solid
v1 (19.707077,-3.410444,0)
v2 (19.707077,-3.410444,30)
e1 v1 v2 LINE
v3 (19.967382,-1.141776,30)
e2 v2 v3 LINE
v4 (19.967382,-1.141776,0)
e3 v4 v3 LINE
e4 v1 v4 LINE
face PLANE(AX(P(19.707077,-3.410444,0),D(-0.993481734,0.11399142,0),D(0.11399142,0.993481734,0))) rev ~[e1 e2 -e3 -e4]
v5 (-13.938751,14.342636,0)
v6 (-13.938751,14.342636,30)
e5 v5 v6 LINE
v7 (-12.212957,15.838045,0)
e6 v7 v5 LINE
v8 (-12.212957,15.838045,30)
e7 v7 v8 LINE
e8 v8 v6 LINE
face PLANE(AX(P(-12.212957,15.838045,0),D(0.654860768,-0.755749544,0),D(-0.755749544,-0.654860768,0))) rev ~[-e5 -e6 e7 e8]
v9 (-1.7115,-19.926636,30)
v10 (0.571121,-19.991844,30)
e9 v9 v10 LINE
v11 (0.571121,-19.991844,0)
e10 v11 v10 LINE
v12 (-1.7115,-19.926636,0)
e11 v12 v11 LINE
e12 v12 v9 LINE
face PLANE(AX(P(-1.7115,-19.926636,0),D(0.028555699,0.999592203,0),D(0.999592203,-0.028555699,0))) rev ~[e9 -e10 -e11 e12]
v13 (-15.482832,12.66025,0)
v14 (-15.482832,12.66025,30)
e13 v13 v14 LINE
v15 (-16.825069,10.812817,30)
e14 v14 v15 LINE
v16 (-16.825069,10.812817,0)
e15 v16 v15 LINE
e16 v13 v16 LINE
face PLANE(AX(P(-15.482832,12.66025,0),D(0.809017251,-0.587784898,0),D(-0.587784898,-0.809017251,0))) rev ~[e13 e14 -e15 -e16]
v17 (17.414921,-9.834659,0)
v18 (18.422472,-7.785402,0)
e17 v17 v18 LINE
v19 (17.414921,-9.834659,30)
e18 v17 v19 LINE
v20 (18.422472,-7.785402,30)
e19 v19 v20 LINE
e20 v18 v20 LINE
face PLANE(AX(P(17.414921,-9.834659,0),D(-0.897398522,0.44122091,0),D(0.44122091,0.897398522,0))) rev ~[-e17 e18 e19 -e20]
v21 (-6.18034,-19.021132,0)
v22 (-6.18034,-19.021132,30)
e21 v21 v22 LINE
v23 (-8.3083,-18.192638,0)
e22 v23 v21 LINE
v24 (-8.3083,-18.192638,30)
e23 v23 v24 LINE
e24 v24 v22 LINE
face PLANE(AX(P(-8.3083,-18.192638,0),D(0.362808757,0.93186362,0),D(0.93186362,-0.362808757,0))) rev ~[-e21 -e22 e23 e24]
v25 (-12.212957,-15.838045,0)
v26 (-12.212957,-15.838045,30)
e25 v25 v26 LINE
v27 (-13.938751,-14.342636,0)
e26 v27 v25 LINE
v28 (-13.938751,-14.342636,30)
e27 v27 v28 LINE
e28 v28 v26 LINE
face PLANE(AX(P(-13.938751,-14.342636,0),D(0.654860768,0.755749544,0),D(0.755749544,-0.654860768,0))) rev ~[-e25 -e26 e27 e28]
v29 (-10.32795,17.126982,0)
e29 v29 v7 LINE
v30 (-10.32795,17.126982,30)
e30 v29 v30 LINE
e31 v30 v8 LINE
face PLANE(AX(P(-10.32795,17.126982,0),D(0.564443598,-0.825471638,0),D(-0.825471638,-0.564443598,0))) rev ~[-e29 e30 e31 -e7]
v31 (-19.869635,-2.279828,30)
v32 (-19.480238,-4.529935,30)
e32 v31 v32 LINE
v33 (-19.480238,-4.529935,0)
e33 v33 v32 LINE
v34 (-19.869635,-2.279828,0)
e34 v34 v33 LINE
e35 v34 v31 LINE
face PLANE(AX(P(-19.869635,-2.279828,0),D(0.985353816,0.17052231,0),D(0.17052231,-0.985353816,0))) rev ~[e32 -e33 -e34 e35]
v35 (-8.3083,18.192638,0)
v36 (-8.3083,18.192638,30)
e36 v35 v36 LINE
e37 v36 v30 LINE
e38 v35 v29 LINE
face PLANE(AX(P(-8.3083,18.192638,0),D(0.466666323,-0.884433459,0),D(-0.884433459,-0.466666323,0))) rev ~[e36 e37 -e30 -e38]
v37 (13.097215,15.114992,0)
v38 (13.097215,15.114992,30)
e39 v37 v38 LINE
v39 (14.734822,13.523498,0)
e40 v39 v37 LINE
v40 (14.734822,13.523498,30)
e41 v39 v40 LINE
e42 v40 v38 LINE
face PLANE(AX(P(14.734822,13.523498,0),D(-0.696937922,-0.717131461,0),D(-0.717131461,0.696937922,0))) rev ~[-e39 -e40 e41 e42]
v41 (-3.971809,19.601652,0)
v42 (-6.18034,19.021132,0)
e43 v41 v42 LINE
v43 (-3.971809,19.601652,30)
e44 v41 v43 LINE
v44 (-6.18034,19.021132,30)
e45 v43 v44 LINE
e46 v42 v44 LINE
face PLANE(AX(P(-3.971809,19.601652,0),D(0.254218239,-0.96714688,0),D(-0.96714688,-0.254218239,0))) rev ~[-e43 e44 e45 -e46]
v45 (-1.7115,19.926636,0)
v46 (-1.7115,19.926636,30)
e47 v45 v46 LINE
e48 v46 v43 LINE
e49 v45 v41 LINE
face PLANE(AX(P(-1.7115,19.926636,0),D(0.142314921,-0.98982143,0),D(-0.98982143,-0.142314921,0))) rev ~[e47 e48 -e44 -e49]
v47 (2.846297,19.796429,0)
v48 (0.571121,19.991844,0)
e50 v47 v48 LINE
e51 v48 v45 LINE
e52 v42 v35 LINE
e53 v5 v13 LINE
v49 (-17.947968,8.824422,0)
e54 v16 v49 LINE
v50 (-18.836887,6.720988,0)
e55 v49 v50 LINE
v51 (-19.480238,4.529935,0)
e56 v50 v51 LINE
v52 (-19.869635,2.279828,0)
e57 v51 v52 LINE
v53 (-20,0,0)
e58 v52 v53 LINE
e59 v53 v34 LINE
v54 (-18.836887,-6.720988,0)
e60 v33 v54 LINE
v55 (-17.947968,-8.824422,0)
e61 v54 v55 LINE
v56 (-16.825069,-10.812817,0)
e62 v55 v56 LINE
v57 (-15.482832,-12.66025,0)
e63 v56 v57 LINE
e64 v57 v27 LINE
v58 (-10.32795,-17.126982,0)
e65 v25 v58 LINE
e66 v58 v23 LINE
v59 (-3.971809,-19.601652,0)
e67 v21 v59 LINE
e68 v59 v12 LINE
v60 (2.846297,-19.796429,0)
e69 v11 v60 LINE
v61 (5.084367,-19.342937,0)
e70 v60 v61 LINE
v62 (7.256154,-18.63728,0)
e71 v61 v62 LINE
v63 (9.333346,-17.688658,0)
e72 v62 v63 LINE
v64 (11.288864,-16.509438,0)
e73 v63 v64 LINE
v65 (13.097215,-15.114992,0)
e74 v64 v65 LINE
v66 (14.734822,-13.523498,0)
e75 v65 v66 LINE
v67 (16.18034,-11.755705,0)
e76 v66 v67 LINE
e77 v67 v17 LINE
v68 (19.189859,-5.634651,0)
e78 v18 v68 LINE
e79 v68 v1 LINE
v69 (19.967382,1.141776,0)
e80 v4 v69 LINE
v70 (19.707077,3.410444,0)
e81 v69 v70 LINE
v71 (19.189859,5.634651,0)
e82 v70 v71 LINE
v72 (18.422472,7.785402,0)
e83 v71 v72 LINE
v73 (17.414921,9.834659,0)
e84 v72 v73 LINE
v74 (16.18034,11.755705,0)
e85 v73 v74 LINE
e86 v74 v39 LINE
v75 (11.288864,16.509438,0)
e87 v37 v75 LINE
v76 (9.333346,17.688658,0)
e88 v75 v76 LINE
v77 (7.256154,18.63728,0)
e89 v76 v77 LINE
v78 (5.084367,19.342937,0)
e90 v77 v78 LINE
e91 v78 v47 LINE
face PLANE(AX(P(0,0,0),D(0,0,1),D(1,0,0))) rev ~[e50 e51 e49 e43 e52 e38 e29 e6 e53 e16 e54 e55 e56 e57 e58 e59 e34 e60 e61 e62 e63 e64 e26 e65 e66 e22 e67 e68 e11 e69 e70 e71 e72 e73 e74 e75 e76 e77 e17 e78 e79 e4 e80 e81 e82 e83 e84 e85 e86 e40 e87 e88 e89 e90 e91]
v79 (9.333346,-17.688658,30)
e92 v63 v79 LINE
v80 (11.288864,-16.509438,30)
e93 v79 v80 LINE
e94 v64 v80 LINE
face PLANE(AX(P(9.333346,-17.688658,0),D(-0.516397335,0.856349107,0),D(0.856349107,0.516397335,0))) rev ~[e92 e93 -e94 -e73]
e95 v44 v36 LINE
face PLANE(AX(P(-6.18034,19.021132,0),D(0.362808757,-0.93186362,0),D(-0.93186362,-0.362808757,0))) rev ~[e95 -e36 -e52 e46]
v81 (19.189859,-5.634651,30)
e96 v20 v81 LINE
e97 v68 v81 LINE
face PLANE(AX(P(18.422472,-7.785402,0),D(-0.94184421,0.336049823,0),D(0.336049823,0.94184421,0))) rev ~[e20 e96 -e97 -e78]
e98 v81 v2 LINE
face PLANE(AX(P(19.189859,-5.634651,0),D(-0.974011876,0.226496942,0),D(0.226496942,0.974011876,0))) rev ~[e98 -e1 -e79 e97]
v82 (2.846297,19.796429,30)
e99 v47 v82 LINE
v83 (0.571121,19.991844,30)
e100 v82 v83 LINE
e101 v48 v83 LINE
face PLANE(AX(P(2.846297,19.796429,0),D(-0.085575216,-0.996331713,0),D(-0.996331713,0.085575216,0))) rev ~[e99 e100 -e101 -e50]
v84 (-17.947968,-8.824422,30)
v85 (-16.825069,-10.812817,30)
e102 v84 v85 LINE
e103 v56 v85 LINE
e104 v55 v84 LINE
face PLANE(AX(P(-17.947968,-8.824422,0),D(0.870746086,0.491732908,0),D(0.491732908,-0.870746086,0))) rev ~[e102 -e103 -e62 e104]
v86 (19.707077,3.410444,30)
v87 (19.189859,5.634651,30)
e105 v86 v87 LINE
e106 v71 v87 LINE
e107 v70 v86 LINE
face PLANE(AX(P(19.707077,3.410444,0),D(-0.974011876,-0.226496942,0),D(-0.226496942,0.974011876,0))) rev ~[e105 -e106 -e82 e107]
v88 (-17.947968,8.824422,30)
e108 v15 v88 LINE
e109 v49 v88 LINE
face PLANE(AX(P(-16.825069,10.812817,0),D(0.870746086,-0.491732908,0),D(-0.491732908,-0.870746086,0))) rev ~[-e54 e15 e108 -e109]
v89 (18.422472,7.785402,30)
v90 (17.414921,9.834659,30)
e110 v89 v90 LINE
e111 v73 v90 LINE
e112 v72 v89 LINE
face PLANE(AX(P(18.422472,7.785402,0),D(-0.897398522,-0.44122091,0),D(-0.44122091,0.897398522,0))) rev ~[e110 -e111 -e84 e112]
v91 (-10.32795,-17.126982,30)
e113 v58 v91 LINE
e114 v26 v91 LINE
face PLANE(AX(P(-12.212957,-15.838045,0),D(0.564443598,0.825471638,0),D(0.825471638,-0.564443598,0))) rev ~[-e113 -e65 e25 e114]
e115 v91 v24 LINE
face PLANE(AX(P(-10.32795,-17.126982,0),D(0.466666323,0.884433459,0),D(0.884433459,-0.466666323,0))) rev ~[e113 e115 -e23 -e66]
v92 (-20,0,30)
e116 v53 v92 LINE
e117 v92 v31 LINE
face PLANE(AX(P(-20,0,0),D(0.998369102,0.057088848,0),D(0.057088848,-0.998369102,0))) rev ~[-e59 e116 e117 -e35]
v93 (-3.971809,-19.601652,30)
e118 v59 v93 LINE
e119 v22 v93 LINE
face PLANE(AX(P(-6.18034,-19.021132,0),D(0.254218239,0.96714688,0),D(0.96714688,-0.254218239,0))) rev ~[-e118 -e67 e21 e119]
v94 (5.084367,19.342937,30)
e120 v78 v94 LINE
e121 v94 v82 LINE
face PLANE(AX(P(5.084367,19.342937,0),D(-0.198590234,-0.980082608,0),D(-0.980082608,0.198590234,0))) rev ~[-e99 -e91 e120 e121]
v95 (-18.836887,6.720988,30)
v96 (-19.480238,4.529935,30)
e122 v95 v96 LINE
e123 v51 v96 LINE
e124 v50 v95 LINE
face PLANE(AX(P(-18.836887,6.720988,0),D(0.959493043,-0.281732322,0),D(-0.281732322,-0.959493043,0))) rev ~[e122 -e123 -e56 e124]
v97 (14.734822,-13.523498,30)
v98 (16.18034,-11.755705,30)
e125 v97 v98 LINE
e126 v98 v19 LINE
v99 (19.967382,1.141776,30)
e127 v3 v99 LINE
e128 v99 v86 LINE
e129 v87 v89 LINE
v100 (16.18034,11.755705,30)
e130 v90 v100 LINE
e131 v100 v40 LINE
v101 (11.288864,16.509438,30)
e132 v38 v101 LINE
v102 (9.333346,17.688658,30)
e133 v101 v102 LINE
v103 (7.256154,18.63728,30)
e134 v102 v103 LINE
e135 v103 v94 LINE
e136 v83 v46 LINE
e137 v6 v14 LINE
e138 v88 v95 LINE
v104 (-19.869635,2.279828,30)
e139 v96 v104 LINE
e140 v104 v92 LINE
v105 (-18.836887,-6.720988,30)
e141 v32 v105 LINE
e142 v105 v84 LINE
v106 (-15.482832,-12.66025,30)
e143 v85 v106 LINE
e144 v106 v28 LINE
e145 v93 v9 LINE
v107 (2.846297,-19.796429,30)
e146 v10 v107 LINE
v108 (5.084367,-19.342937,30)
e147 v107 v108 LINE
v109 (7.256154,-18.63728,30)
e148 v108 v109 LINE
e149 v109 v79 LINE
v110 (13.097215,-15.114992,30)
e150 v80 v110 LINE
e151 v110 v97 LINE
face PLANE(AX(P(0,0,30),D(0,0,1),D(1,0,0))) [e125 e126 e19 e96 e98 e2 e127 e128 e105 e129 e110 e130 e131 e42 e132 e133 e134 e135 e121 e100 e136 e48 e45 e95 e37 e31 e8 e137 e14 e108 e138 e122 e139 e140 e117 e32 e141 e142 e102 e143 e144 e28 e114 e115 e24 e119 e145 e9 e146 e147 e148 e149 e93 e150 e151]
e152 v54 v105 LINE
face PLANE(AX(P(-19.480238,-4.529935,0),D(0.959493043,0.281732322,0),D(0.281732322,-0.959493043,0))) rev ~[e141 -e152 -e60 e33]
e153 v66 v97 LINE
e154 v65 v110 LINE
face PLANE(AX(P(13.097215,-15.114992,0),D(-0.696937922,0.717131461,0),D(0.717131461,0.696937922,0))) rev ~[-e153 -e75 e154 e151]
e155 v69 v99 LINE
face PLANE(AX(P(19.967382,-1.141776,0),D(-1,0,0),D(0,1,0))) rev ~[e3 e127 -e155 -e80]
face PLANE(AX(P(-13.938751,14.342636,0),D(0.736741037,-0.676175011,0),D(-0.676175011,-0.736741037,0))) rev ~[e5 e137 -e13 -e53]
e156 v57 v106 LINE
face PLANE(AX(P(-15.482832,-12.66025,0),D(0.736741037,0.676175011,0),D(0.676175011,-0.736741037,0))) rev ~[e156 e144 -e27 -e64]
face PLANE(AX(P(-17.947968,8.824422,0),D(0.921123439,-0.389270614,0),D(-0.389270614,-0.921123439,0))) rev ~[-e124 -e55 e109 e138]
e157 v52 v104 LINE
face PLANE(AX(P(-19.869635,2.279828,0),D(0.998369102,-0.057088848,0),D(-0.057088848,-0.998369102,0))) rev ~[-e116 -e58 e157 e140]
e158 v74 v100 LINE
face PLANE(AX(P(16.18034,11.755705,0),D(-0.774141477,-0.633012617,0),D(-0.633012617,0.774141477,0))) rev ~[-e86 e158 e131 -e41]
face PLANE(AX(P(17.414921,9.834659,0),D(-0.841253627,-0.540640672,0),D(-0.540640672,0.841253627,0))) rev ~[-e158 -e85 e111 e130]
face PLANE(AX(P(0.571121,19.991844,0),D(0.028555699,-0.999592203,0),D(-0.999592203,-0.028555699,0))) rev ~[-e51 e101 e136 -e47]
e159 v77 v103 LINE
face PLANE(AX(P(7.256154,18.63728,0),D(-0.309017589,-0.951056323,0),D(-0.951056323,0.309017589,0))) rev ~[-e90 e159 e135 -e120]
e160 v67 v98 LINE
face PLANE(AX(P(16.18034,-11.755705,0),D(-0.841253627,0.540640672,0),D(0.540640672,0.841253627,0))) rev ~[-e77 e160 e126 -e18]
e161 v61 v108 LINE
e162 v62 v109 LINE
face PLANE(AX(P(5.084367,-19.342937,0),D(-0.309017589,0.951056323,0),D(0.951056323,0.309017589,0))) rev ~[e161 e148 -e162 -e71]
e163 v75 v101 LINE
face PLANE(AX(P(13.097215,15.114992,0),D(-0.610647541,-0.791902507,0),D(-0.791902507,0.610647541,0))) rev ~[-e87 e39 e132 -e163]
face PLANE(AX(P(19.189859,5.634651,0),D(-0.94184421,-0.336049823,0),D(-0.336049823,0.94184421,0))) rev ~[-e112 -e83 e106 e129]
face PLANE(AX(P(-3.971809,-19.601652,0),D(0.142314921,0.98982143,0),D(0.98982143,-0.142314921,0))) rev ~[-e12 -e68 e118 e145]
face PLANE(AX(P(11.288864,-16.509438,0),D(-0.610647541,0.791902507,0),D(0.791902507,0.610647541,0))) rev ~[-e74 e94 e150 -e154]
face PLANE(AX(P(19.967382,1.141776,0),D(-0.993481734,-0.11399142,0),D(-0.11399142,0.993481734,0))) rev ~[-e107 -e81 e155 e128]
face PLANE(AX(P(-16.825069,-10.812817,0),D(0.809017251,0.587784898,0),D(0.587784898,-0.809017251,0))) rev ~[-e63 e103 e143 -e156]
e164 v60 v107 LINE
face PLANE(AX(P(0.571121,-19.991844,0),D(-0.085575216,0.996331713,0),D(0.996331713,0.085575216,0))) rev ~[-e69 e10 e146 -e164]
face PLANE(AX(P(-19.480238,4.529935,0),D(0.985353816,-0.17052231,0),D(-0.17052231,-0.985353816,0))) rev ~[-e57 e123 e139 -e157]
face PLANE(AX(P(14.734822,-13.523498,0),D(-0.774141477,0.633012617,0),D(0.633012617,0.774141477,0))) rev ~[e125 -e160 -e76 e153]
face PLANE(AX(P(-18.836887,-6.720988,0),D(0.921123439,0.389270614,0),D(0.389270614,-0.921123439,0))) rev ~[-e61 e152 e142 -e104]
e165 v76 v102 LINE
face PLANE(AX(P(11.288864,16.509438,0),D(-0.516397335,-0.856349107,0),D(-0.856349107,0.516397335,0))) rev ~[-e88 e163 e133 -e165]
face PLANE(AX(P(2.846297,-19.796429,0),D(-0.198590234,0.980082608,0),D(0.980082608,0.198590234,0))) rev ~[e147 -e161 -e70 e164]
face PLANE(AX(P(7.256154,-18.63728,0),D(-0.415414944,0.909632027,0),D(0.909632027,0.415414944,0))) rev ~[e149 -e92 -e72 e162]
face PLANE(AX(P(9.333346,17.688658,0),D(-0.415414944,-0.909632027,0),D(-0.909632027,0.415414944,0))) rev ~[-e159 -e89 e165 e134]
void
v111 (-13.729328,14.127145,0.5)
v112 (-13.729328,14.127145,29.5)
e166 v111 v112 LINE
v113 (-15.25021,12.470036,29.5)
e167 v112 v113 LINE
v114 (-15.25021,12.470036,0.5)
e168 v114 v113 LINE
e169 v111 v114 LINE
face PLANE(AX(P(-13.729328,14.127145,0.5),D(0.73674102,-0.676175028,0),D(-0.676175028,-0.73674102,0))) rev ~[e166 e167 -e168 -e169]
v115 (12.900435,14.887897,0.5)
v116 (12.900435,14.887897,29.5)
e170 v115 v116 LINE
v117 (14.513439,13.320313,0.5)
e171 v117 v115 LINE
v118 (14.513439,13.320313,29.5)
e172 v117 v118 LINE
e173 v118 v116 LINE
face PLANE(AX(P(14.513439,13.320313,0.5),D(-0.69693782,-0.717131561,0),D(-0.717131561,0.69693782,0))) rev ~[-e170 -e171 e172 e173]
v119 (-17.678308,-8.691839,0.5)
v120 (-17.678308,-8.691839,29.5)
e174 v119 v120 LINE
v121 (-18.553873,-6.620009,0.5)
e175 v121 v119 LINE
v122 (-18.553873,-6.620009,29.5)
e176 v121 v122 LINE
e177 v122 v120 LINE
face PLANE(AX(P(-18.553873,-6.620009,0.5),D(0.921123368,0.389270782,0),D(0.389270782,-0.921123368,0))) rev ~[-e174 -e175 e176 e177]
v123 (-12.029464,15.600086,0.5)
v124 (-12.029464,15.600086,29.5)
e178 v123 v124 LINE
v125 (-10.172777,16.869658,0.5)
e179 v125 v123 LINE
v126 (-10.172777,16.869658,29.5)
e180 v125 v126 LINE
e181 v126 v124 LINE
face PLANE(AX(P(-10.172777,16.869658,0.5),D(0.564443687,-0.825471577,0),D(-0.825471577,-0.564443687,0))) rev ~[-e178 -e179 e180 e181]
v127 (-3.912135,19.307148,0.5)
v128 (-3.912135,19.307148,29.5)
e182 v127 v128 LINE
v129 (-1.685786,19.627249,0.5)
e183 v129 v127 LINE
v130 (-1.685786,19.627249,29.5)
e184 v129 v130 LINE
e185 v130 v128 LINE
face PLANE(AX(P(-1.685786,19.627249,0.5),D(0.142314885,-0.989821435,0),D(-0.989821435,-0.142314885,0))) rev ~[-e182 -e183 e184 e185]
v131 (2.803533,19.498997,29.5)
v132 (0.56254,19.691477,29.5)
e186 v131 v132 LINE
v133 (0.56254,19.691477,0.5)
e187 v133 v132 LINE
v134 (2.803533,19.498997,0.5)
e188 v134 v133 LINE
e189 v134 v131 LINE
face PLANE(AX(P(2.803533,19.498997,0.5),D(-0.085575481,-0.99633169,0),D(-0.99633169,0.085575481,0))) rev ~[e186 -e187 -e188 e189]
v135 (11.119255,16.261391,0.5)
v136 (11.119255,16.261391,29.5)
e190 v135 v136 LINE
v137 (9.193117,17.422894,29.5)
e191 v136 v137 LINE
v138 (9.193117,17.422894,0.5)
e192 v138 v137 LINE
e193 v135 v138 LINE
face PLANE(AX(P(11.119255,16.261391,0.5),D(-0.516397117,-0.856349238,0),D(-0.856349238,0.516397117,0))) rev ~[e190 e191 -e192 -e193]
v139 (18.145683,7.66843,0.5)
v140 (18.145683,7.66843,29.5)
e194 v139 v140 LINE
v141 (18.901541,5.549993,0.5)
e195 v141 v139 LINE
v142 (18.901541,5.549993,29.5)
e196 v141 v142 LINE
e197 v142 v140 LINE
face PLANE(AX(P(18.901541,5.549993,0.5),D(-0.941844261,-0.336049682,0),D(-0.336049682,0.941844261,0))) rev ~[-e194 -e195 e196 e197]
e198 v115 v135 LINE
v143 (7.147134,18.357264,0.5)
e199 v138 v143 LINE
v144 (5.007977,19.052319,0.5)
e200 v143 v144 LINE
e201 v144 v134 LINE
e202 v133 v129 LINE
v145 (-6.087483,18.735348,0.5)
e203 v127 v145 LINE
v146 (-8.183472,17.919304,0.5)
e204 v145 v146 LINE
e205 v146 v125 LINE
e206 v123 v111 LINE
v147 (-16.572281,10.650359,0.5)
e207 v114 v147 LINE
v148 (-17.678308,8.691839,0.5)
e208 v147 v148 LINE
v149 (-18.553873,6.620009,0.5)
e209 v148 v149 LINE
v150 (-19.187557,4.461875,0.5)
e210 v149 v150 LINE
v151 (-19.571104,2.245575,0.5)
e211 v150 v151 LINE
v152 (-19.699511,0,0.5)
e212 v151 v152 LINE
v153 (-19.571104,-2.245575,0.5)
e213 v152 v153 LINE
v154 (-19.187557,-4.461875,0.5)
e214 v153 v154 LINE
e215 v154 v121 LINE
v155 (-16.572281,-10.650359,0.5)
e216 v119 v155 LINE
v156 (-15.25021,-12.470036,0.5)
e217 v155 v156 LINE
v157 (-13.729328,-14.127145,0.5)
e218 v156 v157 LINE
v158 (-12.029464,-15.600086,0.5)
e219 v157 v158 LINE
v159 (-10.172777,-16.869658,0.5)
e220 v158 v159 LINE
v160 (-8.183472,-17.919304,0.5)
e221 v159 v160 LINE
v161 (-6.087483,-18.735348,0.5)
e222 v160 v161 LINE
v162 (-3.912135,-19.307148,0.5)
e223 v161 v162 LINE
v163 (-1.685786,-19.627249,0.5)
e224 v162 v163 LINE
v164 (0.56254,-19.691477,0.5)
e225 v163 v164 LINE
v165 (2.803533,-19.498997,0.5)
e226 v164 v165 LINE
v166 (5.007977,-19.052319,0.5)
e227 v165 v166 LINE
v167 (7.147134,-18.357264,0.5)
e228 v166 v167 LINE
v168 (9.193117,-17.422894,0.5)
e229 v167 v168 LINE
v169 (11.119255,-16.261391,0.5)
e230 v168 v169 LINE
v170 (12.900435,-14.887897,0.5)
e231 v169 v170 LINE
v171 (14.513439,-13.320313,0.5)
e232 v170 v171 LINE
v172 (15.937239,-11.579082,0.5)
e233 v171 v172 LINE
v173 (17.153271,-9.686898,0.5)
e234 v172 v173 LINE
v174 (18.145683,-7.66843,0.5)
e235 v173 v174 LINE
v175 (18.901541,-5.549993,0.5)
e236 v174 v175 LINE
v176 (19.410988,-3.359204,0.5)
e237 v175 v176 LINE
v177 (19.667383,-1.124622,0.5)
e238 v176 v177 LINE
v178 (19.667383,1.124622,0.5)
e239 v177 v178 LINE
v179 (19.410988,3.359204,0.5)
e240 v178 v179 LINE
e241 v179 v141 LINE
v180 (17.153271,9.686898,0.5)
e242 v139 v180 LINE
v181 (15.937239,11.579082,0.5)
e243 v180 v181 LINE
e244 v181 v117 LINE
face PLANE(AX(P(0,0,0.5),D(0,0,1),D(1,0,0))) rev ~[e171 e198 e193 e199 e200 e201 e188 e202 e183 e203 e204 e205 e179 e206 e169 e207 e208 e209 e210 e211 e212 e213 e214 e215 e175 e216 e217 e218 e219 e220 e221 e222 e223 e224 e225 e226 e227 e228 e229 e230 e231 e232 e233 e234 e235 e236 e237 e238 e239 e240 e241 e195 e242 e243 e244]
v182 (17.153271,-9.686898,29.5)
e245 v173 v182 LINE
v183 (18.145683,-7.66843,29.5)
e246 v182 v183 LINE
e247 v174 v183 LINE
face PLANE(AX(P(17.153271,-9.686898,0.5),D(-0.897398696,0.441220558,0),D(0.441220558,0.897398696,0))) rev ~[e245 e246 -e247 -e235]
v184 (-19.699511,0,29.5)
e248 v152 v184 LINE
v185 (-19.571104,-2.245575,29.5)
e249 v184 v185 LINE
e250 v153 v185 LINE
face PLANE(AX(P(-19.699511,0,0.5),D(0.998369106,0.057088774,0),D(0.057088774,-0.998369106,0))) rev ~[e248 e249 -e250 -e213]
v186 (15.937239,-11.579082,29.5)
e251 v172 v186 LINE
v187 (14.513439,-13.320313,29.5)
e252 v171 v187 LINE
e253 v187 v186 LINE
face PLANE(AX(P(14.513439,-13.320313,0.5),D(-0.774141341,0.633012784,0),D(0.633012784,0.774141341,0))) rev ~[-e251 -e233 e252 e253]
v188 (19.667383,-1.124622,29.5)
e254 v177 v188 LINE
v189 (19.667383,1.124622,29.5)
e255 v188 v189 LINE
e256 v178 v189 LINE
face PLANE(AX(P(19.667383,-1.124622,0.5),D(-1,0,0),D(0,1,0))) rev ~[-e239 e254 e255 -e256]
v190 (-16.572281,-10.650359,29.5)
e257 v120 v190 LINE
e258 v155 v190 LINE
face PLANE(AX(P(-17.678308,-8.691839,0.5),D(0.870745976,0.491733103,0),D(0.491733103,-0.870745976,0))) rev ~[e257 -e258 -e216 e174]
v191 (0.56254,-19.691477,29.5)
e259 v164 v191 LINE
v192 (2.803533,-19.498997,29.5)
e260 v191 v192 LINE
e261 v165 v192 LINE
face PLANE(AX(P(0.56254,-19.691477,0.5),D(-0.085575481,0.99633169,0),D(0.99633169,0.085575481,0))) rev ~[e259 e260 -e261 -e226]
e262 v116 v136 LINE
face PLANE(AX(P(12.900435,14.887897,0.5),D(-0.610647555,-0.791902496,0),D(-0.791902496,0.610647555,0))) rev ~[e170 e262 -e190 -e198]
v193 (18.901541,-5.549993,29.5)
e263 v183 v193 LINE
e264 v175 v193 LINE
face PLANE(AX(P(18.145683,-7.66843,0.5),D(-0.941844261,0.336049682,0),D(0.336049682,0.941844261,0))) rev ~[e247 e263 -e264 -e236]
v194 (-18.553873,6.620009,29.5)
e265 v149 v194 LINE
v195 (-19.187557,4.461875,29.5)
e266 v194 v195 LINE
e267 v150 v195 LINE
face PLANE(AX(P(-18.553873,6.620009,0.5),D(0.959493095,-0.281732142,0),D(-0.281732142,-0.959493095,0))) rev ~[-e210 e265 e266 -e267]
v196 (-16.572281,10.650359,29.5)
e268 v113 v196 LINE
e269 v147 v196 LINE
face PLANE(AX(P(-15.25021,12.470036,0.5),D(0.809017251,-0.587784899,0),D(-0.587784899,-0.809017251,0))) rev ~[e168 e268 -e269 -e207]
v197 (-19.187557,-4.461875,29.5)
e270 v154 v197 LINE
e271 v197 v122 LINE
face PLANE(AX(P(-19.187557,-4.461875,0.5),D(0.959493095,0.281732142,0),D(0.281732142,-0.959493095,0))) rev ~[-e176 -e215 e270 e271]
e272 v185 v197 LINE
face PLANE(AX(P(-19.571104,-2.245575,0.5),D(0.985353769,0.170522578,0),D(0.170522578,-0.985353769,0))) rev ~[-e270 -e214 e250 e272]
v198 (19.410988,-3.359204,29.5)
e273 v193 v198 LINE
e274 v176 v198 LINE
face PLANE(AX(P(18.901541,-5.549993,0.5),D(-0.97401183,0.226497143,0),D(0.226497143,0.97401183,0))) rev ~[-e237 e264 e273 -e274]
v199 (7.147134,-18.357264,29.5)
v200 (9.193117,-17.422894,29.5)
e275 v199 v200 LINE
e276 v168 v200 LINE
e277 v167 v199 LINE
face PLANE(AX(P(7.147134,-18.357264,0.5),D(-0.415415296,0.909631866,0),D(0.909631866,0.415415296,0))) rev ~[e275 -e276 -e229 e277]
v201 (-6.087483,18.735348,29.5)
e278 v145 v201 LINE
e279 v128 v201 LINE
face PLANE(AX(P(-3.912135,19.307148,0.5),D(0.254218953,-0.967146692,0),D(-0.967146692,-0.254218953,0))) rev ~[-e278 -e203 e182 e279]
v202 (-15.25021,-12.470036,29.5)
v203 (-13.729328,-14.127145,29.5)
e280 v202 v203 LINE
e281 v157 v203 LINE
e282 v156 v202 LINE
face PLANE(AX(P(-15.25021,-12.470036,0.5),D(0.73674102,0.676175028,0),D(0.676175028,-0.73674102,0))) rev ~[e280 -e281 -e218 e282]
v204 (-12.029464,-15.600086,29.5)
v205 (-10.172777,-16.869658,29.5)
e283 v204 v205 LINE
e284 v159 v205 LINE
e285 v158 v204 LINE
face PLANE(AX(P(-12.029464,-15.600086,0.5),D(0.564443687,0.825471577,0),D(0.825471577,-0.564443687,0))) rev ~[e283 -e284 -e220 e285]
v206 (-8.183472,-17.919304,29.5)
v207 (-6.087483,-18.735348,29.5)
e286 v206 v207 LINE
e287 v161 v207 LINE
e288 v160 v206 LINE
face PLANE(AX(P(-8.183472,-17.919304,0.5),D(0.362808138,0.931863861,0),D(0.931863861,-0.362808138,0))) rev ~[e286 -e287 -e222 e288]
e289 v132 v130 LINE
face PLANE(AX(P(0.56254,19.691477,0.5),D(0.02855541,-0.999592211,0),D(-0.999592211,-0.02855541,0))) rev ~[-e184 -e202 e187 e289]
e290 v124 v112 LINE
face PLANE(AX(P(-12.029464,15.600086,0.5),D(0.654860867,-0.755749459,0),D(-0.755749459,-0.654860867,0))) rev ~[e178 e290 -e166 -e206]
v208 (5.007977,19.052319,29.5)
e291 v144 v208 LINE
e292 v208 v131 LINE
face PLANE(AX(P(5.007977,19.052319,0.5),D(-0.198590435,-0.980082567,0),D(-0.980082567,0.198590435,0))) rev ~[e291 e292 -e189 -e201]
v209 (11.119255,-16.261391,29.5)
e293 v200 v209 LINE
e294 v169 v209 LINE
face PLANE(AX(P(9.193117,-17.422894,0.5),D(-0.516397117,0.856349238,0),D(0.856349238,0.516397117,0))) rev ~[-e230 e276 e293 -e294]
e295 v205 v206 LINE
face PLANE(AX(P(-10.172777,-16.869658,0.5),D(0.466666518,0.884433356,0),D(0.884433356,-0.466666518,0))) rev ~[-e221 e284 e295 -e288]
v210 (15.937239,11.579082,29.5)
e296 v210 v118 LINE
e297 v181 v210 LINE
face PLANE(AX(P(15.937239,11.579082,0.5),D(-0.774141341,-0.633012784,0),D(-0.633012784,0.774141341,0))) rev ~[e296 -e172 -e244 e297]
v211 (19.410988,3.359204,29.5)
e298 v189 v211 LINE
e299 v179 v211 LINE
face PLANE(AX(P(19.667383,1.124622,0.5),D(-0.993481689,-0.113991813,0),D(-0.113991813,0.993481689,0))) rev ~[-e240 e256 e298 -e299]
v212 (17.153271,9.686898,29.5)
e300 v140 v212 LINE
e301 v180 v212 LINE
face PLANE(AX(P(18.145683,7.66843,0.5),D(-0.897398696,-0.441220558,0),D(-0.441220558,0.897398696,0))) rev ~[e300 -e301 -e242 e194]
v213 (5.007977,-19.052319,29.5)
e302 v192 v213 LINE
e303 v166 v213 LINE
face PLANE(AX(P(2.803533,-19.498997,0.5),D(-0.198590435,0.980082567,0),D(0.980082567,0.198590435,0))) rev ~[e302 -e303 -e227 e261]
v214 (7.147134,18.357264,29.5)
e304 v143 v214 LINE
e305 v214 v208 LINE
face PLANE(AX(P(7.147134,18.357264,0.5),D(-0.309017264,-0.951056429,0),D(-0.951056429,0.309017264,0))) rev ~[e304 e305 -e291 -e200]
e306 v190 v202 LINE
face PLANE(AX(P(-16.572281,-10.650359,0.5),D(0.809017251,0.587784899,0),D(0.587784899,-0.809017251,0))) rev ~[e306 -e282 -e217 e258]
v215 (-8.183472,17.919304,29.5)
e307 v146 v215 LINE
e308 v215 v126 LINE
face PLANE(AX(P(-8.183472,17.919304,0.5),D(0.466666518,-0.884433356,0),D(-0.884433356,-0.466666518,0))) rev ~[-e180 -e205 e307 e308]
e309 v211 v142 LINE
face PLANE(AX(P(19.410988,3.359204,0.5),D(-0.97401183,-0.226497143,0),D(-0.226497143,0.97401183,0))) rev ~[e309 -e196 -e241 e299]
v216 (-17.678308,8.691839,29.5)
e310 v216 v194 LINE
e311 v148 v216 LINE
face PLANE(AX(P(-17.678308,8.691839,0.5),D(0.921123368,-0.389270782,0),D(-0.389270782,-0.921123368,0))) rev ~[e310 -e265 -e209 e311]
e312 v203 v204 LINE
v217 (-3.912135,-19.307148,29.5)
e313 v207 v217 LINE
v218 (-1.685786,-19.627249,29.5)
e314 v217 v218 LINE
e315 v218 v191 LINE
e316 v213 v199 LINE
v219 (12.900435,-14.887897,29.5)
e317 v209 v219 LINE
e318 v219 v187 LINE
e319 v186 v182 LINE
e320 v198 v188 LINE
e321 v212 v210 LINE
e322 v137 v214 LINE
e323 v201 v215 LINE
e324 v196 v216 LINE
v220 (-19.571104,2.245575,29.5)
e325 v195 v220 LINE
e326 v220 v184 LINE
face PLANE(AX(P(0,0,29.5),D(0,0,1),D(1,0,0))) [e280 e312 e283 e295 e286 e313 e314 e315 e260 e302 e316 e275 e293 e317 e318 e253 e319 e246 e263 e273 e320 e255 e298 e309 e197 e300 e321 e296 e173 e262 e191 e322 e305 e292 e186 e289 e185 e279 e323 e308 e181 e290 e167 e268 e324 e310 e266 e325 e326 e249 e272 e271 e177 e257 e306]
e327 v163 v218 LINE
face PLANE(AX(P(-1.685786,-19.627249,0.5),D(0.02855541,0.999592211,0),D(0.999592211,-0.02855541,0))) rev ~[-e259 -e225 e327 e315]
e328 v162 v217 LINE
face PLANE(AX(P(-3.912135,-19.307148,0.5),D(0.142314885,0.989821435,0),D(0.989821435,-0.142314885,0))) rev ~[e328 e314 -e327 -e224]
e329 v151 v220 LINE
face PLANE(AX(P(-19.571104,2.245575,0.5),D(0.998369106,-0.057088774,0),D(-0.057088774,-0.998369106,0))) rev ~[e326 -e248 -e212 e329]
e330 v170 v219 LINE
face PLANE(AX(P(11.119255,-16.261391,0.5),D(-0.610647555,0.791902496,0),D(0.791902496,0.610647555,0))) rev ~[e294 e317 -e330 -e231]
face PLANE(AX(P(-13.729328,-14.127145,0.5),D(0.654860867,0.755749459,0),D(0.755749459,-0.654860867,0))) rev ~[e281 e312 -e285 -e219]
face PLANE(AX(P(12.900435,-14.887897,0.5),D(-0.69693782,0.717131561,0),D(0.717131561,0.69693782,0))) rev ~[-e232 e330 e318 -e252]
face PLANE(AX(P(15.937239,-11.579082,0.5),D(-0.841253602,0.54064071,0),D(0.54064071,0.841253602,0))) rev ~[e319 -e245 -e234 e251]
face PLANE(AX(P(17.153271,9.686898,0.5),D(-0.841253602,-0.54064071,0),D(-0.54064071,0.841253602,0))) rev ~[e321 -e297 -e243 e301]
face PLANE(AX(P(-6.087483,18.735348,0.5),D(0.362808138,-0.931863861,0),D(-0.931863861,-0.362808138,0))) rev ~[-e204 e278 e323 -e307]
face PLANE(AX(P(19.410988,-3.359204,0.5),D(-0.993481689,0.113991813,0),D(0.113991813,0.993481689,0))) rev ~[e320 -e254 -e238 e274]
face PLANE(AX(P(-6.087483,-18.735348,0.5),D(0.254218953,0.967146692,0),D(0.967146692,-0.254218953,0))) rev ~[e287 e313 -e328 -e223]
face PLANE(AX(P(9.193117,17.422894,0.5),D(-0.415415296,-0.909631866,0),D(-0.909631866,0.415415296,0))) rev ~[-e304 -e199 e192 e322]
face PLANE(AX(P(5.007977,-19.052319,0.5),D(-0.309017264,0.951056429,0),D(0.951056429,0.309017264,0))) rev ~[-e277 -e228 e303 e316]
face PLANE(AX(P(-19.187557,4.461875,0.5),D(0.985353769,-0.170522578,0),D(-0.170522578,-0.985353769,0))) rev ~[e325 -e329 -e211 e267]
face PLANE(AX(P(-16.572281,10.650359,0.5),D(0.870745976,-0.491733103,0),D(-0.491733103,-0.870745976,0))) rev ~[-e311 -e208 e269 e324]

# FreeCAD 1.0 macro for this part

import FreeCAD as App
import Part
import Sketcher
Q = App.Units.Quantity


def add_polygon(sketch, points):
    """Adds a closed chain of lines whose ends are joined by coincident constraints."""
    first, n = sketch.GeometryCount, len(points)
    for a, b in zip(points, points[1:] + points[:1]):
        sketch.addGeometry(Part.LineSegment(App.Vector(*a, 0), App.Vector(*b, 0)), False)
    for i in range(n):
        sketch.addConstraint(Sketcher.Constraint("Coincident", first + i, 2, first + (i + 1) % n, 1))

doc = App.newDocument("Part")
body = doc.addObject("PartDesign::Body", "Body")

# Sketch on XY plane
sketch1 = doc.addObject("Sketcher::SketchObject", "Sketch")
body.addObject(sketch1)
sketch1.AttachmentSupport = (doc.XY_Plane, [""])
sketch1.MapMode = "FlatFace"
add_polygon(sketch1, [(-20, 0), (-19.869635, -2.279828), (-19.480238, -4.529935), (-18.836887, -6.720988), (-17.947968, -8.824422), (-16.825069, -10.812817), (-15.482832, -12.66025), (-13.938751, -14.342636), (-12.212957, -15.838045), (-10.32795, -17.126982), (-8.3083, -18.192638), (-6.18034, -19.021132), (-3.971809, -19.601652), (-1.7115, -19.926636), (0.571121, -19.991844), (2.846297, -19.796429), (5.084367, -19.342937), (7.256154, -18.63728), (9.333346, -17.688658), (11.288864, -16.509438), (13.097215, -15.114992), (14.734822, -13.523498), (16.18034, -11.755705), (17.414921, -9.834659), (18.422472, -7.785402), (19.189859, -5.634651), (19.707077, -3.410444), (19.967382, -1.141776), (19.967382, 1.141776), (19.707077, 3.410444), (19.189859, 5.634651), (18.422472, 7.785402), (17.414921, 9.834659), (16.18034, 11.755705), (14.734822, 13.523498), (13.097215, 15.114992), (11.288864, 16.509438), (9.333346, 17.688658), (7.256154, 18.63728), (5.084367, 19.342937), (2.846297, 19.796429), (0.571121, 19.991844), (-1.7115, 19.926636), (-3.971809, 19.601652), (-6.18034, 19.021132), (-8.3083, 18.192638), (-10.32795, 17.126982), (-12.212957, 15.838045), (-13.938751, 14.342636), (-15.482832, 12.66025), (-16.825069, 10.812817), (-17.947968, 8.824422), (-18.836887, 6.720988), (-19.480238, 4.529935), (-19.869635, 2.279828)])  # lines 0-54
sketch1.addConstraint(Sketcher.Constraint("Vertical", 27))
sketch1.addConstraint(Sketcher.Constraint("PointOnObject", 54, 2, -1))
sketch1.addConstraint(Sketcher.Constraint("DistanceX", 54, 2, -1, 1, Q("20 mm")))
sketch1.addConstraint(Sketcher.Constraint("DistanceY", 17, 2, 22, 2, Q("7.853999 mm")))
sketch1.addConstraint(Sketcher.Constraint("DistanceY", 31, 2, 36, 2, Q("7.853999 mm")))
sketch1.addConstraint(Sketcher.Constraint("DistanceX", 9, 2, -1, 1, Q("8.3083 mm")))
sketch1.addConstraint(Sketcher.Constraint("DistanceX", 12, 2, -1, 1, Q("1.7115 mm")))
sketch1.addConstraint(Sketcher.Constraint("DistanceY", 23, 2, -1, 1, Q("7.785402 mm")))
sketch1.addConstraint(Sketcher.Constraint("DistanceY", -1, 1, 30, 2, Q("7.785402 mm")))
sketch1.addConstraint(Sketcher.Constraint("DistanceX", 41, 2, -1, 1, Q("1.7115 mm")))
sketch1.addConstraint(Sketcher.Constraint("DistanceX", 44, 2, -1, 1, Q("8.3083 mm")))
sketch1.addConstraint(Sketcher.Constraint("DistanceX", 3, 2, 4, 2, Q("1.122898 mm")))
sketch1.addConstraint(Sketcher.Constraint("DistanceY", 6, 2, 1, 2, Q("9.812701 mm")))
sketch1.addConstraint(Sketcher.Constraint("DistanceX", 6, 2, 8, 2, Q("3.610802 mm")))
sketch1.addConstraint(Sketcher.Constraint("DistanceY", 12, 2, 15, 2, Q("0.583698 mm")))
sketch1.addConstraint(Sketcher.Constraint("DistanceY", 15, 2, 18, 2, Q("2.8335 mm")))
sketch1.addConstraint(Sketcher.Constraint("DistanceX", 20, 2, 22, 2, Q("2.680099 mm")))
sketch1.addConstraint(Sketcher.Constraint("DistanceX", 33, 2, 31, 2, Q("2.680099 mm")))
sketch1.addConstraint(Sketcher.Constraint("DistanceY", 35, 2, 38, 2, Q("2.8335 mm")))
sketch1.addConstraint(Sketcher.Constraint("DistanceY", 38, 2, 41, 2, Q("0.583698 mm")))
sketch1.addConstraint(Sketcher.Constraint("DistanceX", 47, 2, 45, 2, Q("3.610802 mm")))
sketch1.addConstraint(Sketcher.Constraint("DistanceX", 50, 2, 49, 2, Q("1.122898 mm")))
sketch1.addConstraint(Sketcher.Constraint("Distance", 6, Q("2.283552 mm")))
sketch1.addConstraint(Sketcher.Constraint("Distance", 9, Q("2.283552 mm")))
sketch1.addConstraint(Sketcher.Constraint("Distance", 22, Q("2.283552 mm")))
sketch1.addConstraint(Sketcher.Constraint("Distance", 32, Q("2.283552 mm")))
sketch1.addConstraint(Sketcher.Constraint("Distance", 45, Q("2.283552 mm")))
sketch1.addConstraint(Sketcher.Constraint("Distance", 48, Q("2.283552 mm")))
sketch1.addConstraint(Sketcher.Constraint("DistanceY", 27, 1, 27, 2, Q("2.283552 mm")))
sketch1.addConstraint(Sketcher.Constraint("DistanceY", 0, 2, -1, 1, Q("2.279828 mm")))
sketch1.addConstraint(Sketcher.Constraint("DistanceY", 2, 2, -1, 1, Q("6.720988 mm")))
sketch1.addConstraint(Sketcher.Constraint("DistanceY", 3, 2, -1, 1, Q("8.824422 mm")))
sketch1.addConstraint(Sketcher.Constraint("DistanceX", 4, 2, -1, 1, Q("16.825069 mm")))
sketch1.addConstraint(Sketcher.Constraint("DistanceX", 5, 2, -1, 1, Q("15.482832 mm")))
sketch1.addConstraint(Sketcher.Constraint("DistanceY", 5, 2, -1, 1, Q("12.66025 mm")))
sketch1.addConstraint(Sketcher.Constraint("DistanceX", 6, 2, -1, 1, Q("13.938751 mm")))
sketch1.addConstraint(Sketcher.Constraint("DistanceY", 8, 2, -1, 1, Q("17.126982 mm")))
sketch1.addConstraint(Sketcher.Constraint("DistanceX", 10, 2, -1, 1, Q("6.18034 mm")))
sketch1.addConstraint(Sketcher.Constraint("DistanceY", 10, 2, -1, 1, Q("19.021132 mm")))
sketch1.addConstraint(Sketcher.Constraint("DistanceX", 11, 2, -1, 1, Q("3.971809 mm")))
sketch1.addConstraint(Sketcher.Constraint("DistanceX", -1, 1, 13, 2, Q("0.571121 mm")))
sketch1.addConstraint(Sketcher.Constraint("DistanceY", 14, 2, -1, 1, Q("19.796429 mm")))
sketch1.addConstraint(Sketcher.Constraint("DistanceY", 16, 2, -1, 1, Q("18.63728 mm")))
sketch1.addConstraint(Sketcher.Constraint("DistanceX", -1, 1, 21, 2, Q("16.18034 mm")))
sketch1.addConstraint(Sketcher.Constraint("DistanceX", -1, 1, 22, 2, Q("17.414921 mm")))
sketch1.addConstraint(Sketcher.Constraint("DistanceY", 22, 2, -1, 1, Q("9.834659 mm")))
sketch1.addConstraint(Sketcher.Constraint("DistanceX", -1, 1, 23, 2, Q("18.422472 mm")))
sketch1.addConstraint(Sketcher.Constraint("DistanceX", -1, 1, 24, 2, Q("19.189859 mm")))
sketch1.addConstraint(Sketcher.Constraint("DistanceY", 24, 2, -1, 1, Q("5.634651 mm")))
sketch1.addConstraint(Sketcher.Constraint("DistanceX", -1, 1, 29, 2, Q("19.189859 mm")))
sketch1.addConstraint(Sketcher.Constraint("DistanceY", -1, 1, 29, 2, Q("5.634651 mm")))
sketch1.addConstraint(Sketcher.Constraint("DistanceX", -1, 1, 30, 2, Q("18.422472 mm")))
sketch1.addConstraint(Sketcher.Constraint("DistanceX", -1, 1, 31, 2, Q("17.414921 mm")))
sketch1.addConstraint(Sketcher.Constraint("DistanceY", -1, 1, 31, 2, Q("9.834659 mm")))
sketch1.addConstraint(Sketcher.Constraint("DistanceX", -1, 1, 32, 2, Q("16.18034 mm")))
sketch1.addConstraint(Sketcher.Constraint("DistanceY", -1, 1, 37, 2, Q("18.63728 mm")))
sketch1.addConstraint(Sketcher.Constraint("DistanceY", -1, 1, 39, 2, Q("19.796429 mm")))
sketch1.addConstraint(Sketcher.Constraint("DistanceX", -1, 1, 40, 2, Q("0.571121 mm")))
sketch1.addConstraint(Sketcher.Constraint("DistanceX", 42, 2, -1, 1, Q("3.971809 mm")))
sketch1.addConstraint(Sketcher.Constraint("DistanceX", 43, 2, -1, 1, Q("6.18034 mm")))
sketch1.addConstraint(Sketcher.Constraint("DistanceY", -1, 1, 43, 2, Q("19.021132 mm")))
sketch1.addConstraint(Sketcher.Constraint("DistanceY", -1, 1, 44, 2, Q("18.192638 mm")))
sketch1.addConstraint(Sketcher.Constraint("DistanceX", 45, 2, -1, 1, Q("10.32795 mm")))
sketch1.addConstraint(Sketcher.Constraint("DistanceX", 48, 2, -1, 1, Q("15.482832 mm")))
sketch1.addConstraint(Sketcher.Constraint("DistanceY", -1, 1, 48, 2, Q("12.66025 mm")))
sketch1.addConstraint(Sketcher.Constraint("DistanceX", 49, 2, -1, 1, Q("16.825069 mm")))
sketch1.addConstraint(Sketcher.Constraint("DistanceY", -1, 1, 50, 2, Q("8.824422 mm")))
sketch1.addConstraint(Sketcher.Constraint("DistanceY", -1, 1, 51, 2, Q("6.720988 mm")))
sketch1.addConstraint(Sketcher.Constraint("DistanceY", -1, 1, 53, 2, Q("2.279828 mm")))
sketch1.addConstraint(Sketcher.Constraint("DistanceX", 1, 2, 2, 2, Q("0.643351 mm")))
sketch1.addConstraint(Sketcher.Constraint("DistanceX", 2, 2, 3, 2, Q("0.88892 mm")))
sketch1.addConstraint(Sketcher.Constraint("DistanceY", 4, 2, 2, 2, Q("4.091828 mm")))
sketch1.addConstraint(Sketcher.Constraint("DistanceY", 7, 2, 6, 2, Q("1.495409 mm")))
sketch1.addConstraint(Sketcher.Constraint("DistanceX", 3, 2, 7, 2, Q("5.73501 mm")))
sketch1.addConstraint(Sketcher.Constraint("DistanceY", 11, 2, 10, 2, Q("0.580521 mm")))
sketch1.addConstraint(Sketcher.Constraint("DistanceY", 12, 2, 7, 2, Q("4.088591 mm")))
sketch1.addConstraint(Sketcher.Constraint("DistanceY", 13, 2, 12, 2, Q("0.065208 mm")))
sketch1.addConstraint(Sketcher.Constraint("DistanceX", 14, 2, 15, 2, Q("2.23807 mm")))
sketch1.addConstraint(Sketcher.Constraint("DistanceX", 15, 2, 17, 2, Q("4.24898 mm")))
sketch1.addConstraint(Sketcher.Constraint("DistanceX", 16, 2, 18, 2, Q("4.03271 mm")))
sketch1.addConstraint(Sketcher.Constraint("DistanceX", 18, 2, 19, 2, Q("1.808351 mm")))
sketch1.addConstraint(Sketcher.Constraint("DistanceX", 17, 2, 19, 2, Q("3.763868 mm")))
sketch1.addConstraint(Sketcher.Constraint("DistanceX", 18, 2, 20, 2, Q("3.445958 mm")))
sketch1.addConstraint(Sketcher.Constraint("DistanceY", 18, 2, 20, 2, Q("2.98594 mm")))
sketch1.addConstraint(Sketcher.Constraint("DistanceY", 19, 2, 23, 2, Q("7.32959 mm")))
sketch1.addConstraint(Sketcher.Constraint("DistanceY", 21, 2, 25, 2, Q("8.345261 mm")))
sketch1.addConstraint(Sketcher.Constraint("DistanceX", 23, 2, 26, 2, Q("1.54491 mm")))
sketch1.addConstraint(Sketcher.Constraint("DistanceY", 21, 2, 26, 2, Q("10.613929 mm")))
sketch1.addConstraint(Sketcher.Constraint("DistanceY", 26, 2, 28, 2, Q("4.55222 mm")))
sketch1.addConstraint(Sketcher.Constraint("DistanceY", 31, 2, 33, 2, Q("3.688839 mm")))
sketch1.addConstraint(Sketcher.Constraint("DistanceY", 30, 2, 34, 2, Q("7.32959 mm")))
sketch1.addConstraint(Sketcher.Constraint("DistanceX", 35, 2, 34, 2, Q("1.808351 mm")))
sketch1.addConstraint(Sketcher.Constraint("DistanceX", 35, 2, 33, 2, Q("3.445958 mm")))
sketch1.addConstraint(Sketcher.Constraint("DistanceY", 33, 2, 35, 2, Q("2.98594 mm")))
sketch1.addConstraint(Sketcher.Constraint("DistanceX", 36, 2, 34, 2, Q("3.763868 mm")))
sketch1.addConstraint(Sketcher.Constraint("DistanceX", 37, 2, 35, 2, Q("4.03271 mm")))
sketch1.addConstraint(Sketcher.Constraint("DistanceX", 38, 2, 36, 2, Q("4.24898 mm")))
sketch1.addConstraint(Sketcher.Constraint("DistanceX", 39, 2, 38, 2, Q("2.23807 mm")))
sketch1.addConstraint(Sketcher.Constraint("DistanceY", 41, 2, 40, 2, Q("0.065208 mm")))
sketch1.addConstraint(Sketcher.Constraint("DistanceY", 43, 2, 42, 2, Q("0.580521 mm")))
sketch1.addConstraint(Sketcher.Constraint("DistanceY", 46, 2, 41, 2, Q("4.088591 mm")))
sketch1.addConstraint(Sketcher.Constraint("DistanceY", 49, 2, 47, 2, Q("3.529819 mm")))
sketch1.addConstraint(Sketcher.Constraint("DistanceX", 50, 2, 46, 2, Q("5.73501 mm")))
sketch1.addConstraint(Sketcher.Constraint("DistanceX", 51, 2, 50, 2, Q("0.88892 mm")))
sketch1.addConstraint(Sketcher.Constraint("DistanceX", 52, 2, 51, 2, Q("0.643351 mm")))
sketch1.addConstraint(Sketcher.Constraint("DistanceY", 52, 2, 49, 2, Q("6.282881 mm")))
sketch1.addConstraint(Sketcher.Constraint("Distance", 0, Q("2.283552 mm")))
sketch1.addConstraint(Sketcher.Constraint("Distance", 25, Q("2.283552 mm")))
sketch1.addConstraint(Sketcher.Constraint("Distance", 28, Q("2.283553 mm")))
sketch1.addConstraint(Sketcher.Constraint("Distance", 53, Q("2.283553 mm")))
pad1 = doc.addObject("PartDesign::Pad", "Pad")
body.addObject(pad1)
pad1.Profile = sketch1
pad1.Length = 30

# Sketch on XY plane
sketch2 = doc.addObject("Sketcher::SketchObject", "Sketch001")
body.addObject(sketch2)
sketch2.AttachmentSupport = (doc.XY_Plane, [""])
sketch2.MapMode = "FlatFace"
sketch2.AttachmentOffset = App.Placement(App.Vector(0, 0, 0.5), App.Rotation())
add_polygon(sketch2, [(-19.571104, -2.245575), (-19.187557, -4.461875), (-18.553873, -6.620009), (-17.678308, -8.691839), (-16.572281, -10.650359), (-15.25021, -12.470036), (-13.729328, -14.127145), (-12.029464, -15.600086), (-10.172777, -16.869658), (-8.183472, -17.919304), (-6.087483, -18.735348), (-3.912135, -19.307148), (-1.685786, -19.627249), (0.56254, -19.691477), (2.803533, -19.498997), (5.007977, -19.052319), (7.147134, -18.357264), (9.193117, -17.422894), (11.119255, -16.261391), (12.900435, -14.887897), (14.513439, -13.320313), (15.937239, -11.579082), (17.153271, -9.686898), (18.145683, -7.66843), (18.901541, -5.549993), (19.410988, -3.359204), (19.667383, -1.124622), (19.667383, 1.124622), (19.410988, 3.359204), (18.901541, 5.549993), (18.145683, 7.66843), (17.153271, 9.686898), (15.937239, 11.579082), (14.513439, 13.320313), (12.900435, 14.887897), (11.119255, 16.261391), (9.193117, 17.422894), (7.147134, 18.357264), (5.007977, 19.052319), (2.803533, 19.498997), (0.56254, 19.691477), (-1.685786, 19.627249), (-3.912135, 19.307148), (-6.087483, 18.735348), (-8.183472, 17.919304), (-10.172777, 16.869658), (-12.029464, 15.600086), (-13.729328, 14.127145), (-15.25021, 12.470036), (-16.572281, 10.650359), (-17.678308, 8.691839), (-18.553873, 6.620009), (-19.187557, 4.461875), (-19.571104, 2.245575), (-19.699511, 0)])  # lines 0-54
sketch2.addConstraint(Sketcher.Constraint("Vertical", 26))
sketch2.addConstraint(Sketcher.Constraint("PointOnObject", 53, 2, -1))
sketch2.addConstraint(Sketcher.Constraint("DistanceY", 18, 2, 21, 2, Q("5.200998 mm")))
sketch2.addConstraint(Sketcher.Constraint("DistanceY", 30, 2, 33, 2, Q("5.200998 mm")))
sketch2.addConstraint(Sketcher.Constraint("DistanceY", 21, 2, -1, 1, Q("9.686898 mm")))
sketch2.addConstraint(Sketcher.Constraint("DistanceY", -1, 1, 30, 2, Q("9.686898 mm")))
sketch2.addConstraint(Sketcher.Constraint("DistanceX", 2, 2, 4, 2, Q("2.428099 mm")))
sketch2.addConstraint(Sketcher.Constraint("DistanceY", 7, 2, 3, 2, Q("6.219298 mm")))
sketch2.addConstraint(Sketcher.Constraint("DistanceY", 10, 2, 9, 2, Q("0.5718 mm")))
sketch2.addConstraint(Sketcher.Constraint("DistanceY", 11, 2, 10, 2, Q("0.320101 mm")))
sketch2.addConstraint(Sketcher.Constraint("DistanceX", 13, 2, 15, 2, Q("4.343601 mm")))
sketch2.addConstraint(Sketcher.Constraint("DistanceX", 15, 2, 18, 2, Q("5.753302 mm")))
sketch2.addConstraint(Sketcher.Constraint("DistanceY", 13, 2, 18, 2, Q("4.6111 mm")))
sketch2.addConstraint(Sketcher.Constraint("DistanceX", 19, 2, 20, 2, Q("1.4238 mm")))
sketch2.addConstraint(Sketcher.Constraint("DistanceX", 19, 2, 23, 2, Q("4.388102 mm")))
sketch2.addConstraint(Sketcher.Constraint("DistanceX", 22, 2, 25, 2, Q("1.5217 mm")))
sketch2.addConstraint(Sketcher.Constraint("DistanceX", 29, 2, 26, 2, Q("1.5217 mm")))
sketch2.addConstraint(Sketcher.Constraint("DistanceX", 32, 2, 31, 2, Q("1.4238 mm")))
sketch2.addConstraint(Sketcher.Constraint("DistanceX", 32, 2, 28, 2, Q("4.388102 mm")))
sketch2.addConstraint(Sketcher.Constraint("DistanceX", 36, 2, 33, 2, Q("5.753302 mm")))
sketch2.addConstraint(Sketcher.Constraint("DistanceX", 38, 2, 36, 2, Q("4.343601 mm")))
sketch2.addConstraint(Sketcher.Constraint("DistanceY", 33, 2, 38, 2, Q("4.6111 mm")))
sketch2.addConstraint(Sketcher.Constraint("DistanceY", 41, 2, 40, 2, Q("0.320101 mm")))
sketch2.addConstraint(Sketcher.Constraint("DistanceY", 42, 2, 41, 2, Q("0.5718 mm")))
sketch2.addConstraint(Sketcher.Constraint("DistanceY", 48, 2, 44, 2, Q("6.219298 mm")))
sketch2.addConstraint(Sketcher.Constraint("DistanceX", 49, 2, 47, 2, Q("2.428099 mm")))
sketch2.addConstraint(Sketcher.Constraint("DistanceY", 52, 2, 51, 2, Q("2.216301 mm")))
sketch2.addConstraint(Sketcher.Constraint("DistanceY", 0, 2, 54, 2, Q("2.216301 mm")))
sketch2.addConstraint(Sketcher.Constraint("DistanceY", 26, 1, 26, 2, Q("2.249243 mm")))
sketch2.addConstraint(Sketcher.Constraint("DistanceY", 1, 2, -1, 1, Q("6.620009 mm")))
sketch2.addConstraint(Sketcher.Constraint("DistanceX", 2, 2, -1, 1, Q("17.678308 mm")))
sketch2.addConstraint(Sketcher.Constraint("DistanceY", 2, 2, -1, 1, Q("8.691839 mm")))
sketch2.addConstraint(Sketcher.Constraint("DistanceX", 3, 2, -1, 1, Q("16.572281 mm")))
sketch2.addConstraint(Sketcher.Constraint("DistanceY", 3, 2, -1, 1, Q("10.650359 mm")))
sketch2.addConstraint(Sketcher.Constraint("DistanceX", 5, 2, -1, 1, Q("13.729328 mm")))
sketch2.addConstraint(Sketcher.Constraint("DistanceX", 8, 2, -1, 1, Q("8.183472 mm")))
sketch2.addConstraint(Sketcher.Constraint("DistanceY", 11, 2, -1, 1, Q("19.627249 mm")))
sketch2.addConstraint(Sketcher.Constraint("DistanceX", -1, 1, 12, 2, Q("0.56254 mm")))
sketch2.addConstraint(Sketcher.Constraint("DistanceY", 14, 2, -1, 1, Q("19.052319 mm")))
sketch2.addConstraint(Sketcher.Constraint("DistanceY", 17, 2, -1, 1, Q("16.261391 mm")))
sketch2.addConstraint(Sketcher.Constraint("DistanceX", -1, 1, 19, 2, Q("14.513439 mm")))
sketch2.addConstraint(Sketcher.Constraint("DistanceY", 20, 2, -1, 1, Q("11.579082 mm")))
sketch2.addConstraint(Sketcher.Constraint("DistanceX", -1, 1, 21, 2, Q("17.153271 mm")))
sketch2.addConstraint(Sketcher.Constraint("DistanceY", 22, 2, -1, 1, Q("7.66843 mm")))
sketch2.addConstraint(Sketcher.Constraint("DistanceY", 25, 2, -1, 1, Q("1.124622 mm")))
sketch2.addConstraint(Sketcher.Constraint("DistanceX", -1, 1, 28, 2, Q("18.901541 mm")))
sketch2.addConstraint(Sketcher.Constraint("DistanceY", -1, 1, 29, 2, Q("7.66843 mm")))
sketch2.addConstraint(Sketcher.Constraint("DistanceX", -1, 1, 30, 2, Q("17.153271 mm")))
sketch2.addConstraint(Sketcher.Constraint("DistanceY", -1, 1, 31, 2, Q("11.579082 mm")))
sketch2.addConstraint(Sketcher.Constraint("DistanceY", -1, 1, 34, 2, Q("16.261391 mm")))
sketch2.addConstraint(Sketcher.Constraint("DistanceY", -1, 1, 37, 2, Q("19.052319 mm")))
sketch2.addConstraint(Sketcher.Constraint("DistanceX", -1, 1, 39, 2, Q("0.56254 mm")))
sketch2.addConstraint(Sketcher.Constraint("DistanceY", -1, 1, 40, 2, Q("19.627249 mm")))
sketch2.addConstraint(Sketcher.Constraint("DistanceX", 43, 2, -1, 1, Q("8.183472 mm")))
sketch2.addConstraint(Sketcher.Constraint("DistanceX", 46, 2, -1, 1, Q("13.729328 mm")))
sketch2.addConstraint(Sketcher.Constraint("DistanceX", 47, 2, -1, 1, Q("15.25021 mm")))
sketch2.addConstraint(Sketcher.Constraint("DistanceX", 48, 2, -1, 1, Q("16.572281 mm")))
sketch2.addConstraint(Sketcher.Constraint("DistanceY", -1, 1, 48, 2, Q("10.650359 mm")))
sketch2.addConstraint(Sketcher.Constraint("DistanceY", -1, 1, 49, 2, Q("8.691839 mm")))
sketch2.addConstraint(Sketcher.Constraint("DistanceY", -1, 1, 50, 2, Q("6.620009 mm")))
sketch2.addConstraint(Sketcher.Constraint("DistanceX", 53, 2, -1, 1, Q("19.699511 mm")))
sketch2.addConstraint(Sketcher.Constraint("DistanceX", 0, 2, 2, 2, Q("1.509249 mm")))
sketch2.addConstraint(Sketcher.Constraint("DistanceY", 4, 2, 0, 2, Q("8.00816 mm")))
sketch2.addConstraint(Sketcher.Constraint("DistanceY", 5, 2, 4, 2, Q("1.657109 mm")))
sketch2.addConstraint(Sketcher.Constraint("DistanceY", 6, 2, 5, 2, Q("1.472941 mm")))
sketch2.addConstraint(Sketcher.Constraint("DistanceX", 1, 2, 6, 2, Q("6.524409 mm")))
sketch2.addConstraint(Sketcher.Constraint("DistanceY", 7, 2, 6, 2, Q("1.269571 mm")))
sketch2.addConstraint(Sketcher.Constraint("DistanceX", 5, 2, 7, 2, Q("3.556551 mm")))
sketch2.addConstraint(Sketcher.Constraint("DistanceY", 8, 2, 5, 2, Q("3.792159 mm")))
sketch2.addConstraint(Sketcher.Constraint("DistanceX", 8, 2, 9, 2, Q("2.095989 mm")))
sketch2.addConstraint(Sketcher.Constraint("DistanceX", 6, 2, 9, 2, Q("5.941981 mm")))
sketch2.addConstraint(Sketcher.Constraint("DistanceX", 9, 2, 10, 2, Q("2.175348 mm")))
sketch2.addConstraint(Sketcher.Constraint("DistanceX", 10, 2, 11, 2, Q("2.226349 mm")))
sketch2.addConstraint(Sketcher.Constraint("DistanceY", 12, 2, 11, 2, Q("0.064228 mm")))
sketch2.addConstraint(Sketcher.Constraint("DistanceX", 11, 2, 13, 2, Q("4.489318 mm")))
sketch2.addConstraint(Sketcher.Constraint("DistanceX", 10, 2, 14, 2, Q("8.920111 mm")))
sketch2.addConstraint(Sketcher.Constraint("DistanceY", 15, 2, 16, 2, Q("0.93437 mm")))
sketch2.addConstraint(Sketcher.Constraint("DistanceX", 14, 2, 16, 2, Q("4.185141 mm")))
sketch2.addConstraint(Sketcher.Constraint("DistanceX", 15, 2, 17, 2, Q("3.972121 mm")))
sketch2.addConstraint(Sketcher.Constraint("DistanceY", 16, 2, 19, 2, Q("4.10258 mm")))
sketch2.addConstraint(Sketcher.Constraint("DistanceY", 19, 2, 20, 2, Q("1.741232 mm")))
sketch2.addConstraint(Sketcher.Constraint("DistanceX", 17, 2, 22, 2, Q("7.026428 mm")))
sketch2.addConstraint(Sketcher.Constraint("DistanceY", 20, 2, 23, 2, Q("6.029088 mm")))
sketch2.addConstraint(Sketcher.Constraint("DistanceY", 23, 2, 24, 2, Q("2.190789 mm")))
sketch2.addConstraint(Sketcher.Constraint("DistanceX", 20, 2, 24, 2, Q("3.473749 mm")))
sketch2.addConstraint(Sketcher.Constraint("DistanceY", 27, 2, 28, 2, Q("2.190789 mm")))
sketch2.addConstraint(Sketcher.Constraint("DistanceY", 26, 2, 28, 2, Q("4.425371 mm")))
sketch2.addConstraint(Sketcher.Constraint("DistanceX", 31, 2, 27, 2, Q("3.473749 mm")))
sketch2.addConstraint(Sketcher.Constraint("DistanceY", 31, 2, 32, 2, Q("1.741232 mm")))
sketch2.addConstraint(Sketcher.Constraint("DistanceX", 34, 2, 33, 2, Q("1.78118 mm")))
sketch2.addConstraint(Sketcher.Constraint("DistanceX", 34, 2, 29, 2, Q("7.026428 mm")))
sketch2.addConstraint(Sketcher.Constraint("DistanceX", 35, 2, 33, 2, Q("3.707318 mm")))
sketch2.addConstraint(Sketcher.Constraint("DistanceY", 32, 2, 35, 2, Q("4.10258 mm")))
sketch2.addConstraint(Sketcher.Constraint("DistanceY", 35, 2, 36, 2, Q("0.93437 mm")))
sketch2.addConstraint(Sketcher.Constraint("DistanceX", 37, 2, 35, 2, Q("4.185141 mm")))
sketch2.addConstraint(Sketcher.Constraint("DistanceY", 38, 2, 39, 2, Q("0.19248 mm")))
sketch2.addConstraint(Sketcher.Constraint("DistanceX", 40, 2, 38, 2, Q("4.489318 mm")))
sketch2.addConstraint(Sketcher.Constraint("DistanceX", 41, 2, 40, 2, Q("2.226349 mm")))
sketch2.addConstraint(Sketcher.Constraint("DistanceX", 42, 2, 41, 2, Q("2.175348 mm")))
sketch2.addConstraint(Sketcher.Constraint("DistanceX", 44, 2, 40, 2, Q("8.486991 mm")))
sketch2.addConstraint(Sketcher.Constraint("DistanceY", 45, 2, 44, 2, Q("1.269571 mm")))
sketch2.addConstraint(Sketcher.Constraint("DistanceX", 45, 2, 42, 2, Q("5.941981 mm")))
sketch2.addConstraint(Sketcher.Constraint("DistanceY", 46, 2, 45, 2, Q("1.472941 mm")))
sketch2.addConstraint(Sketcher.Constraint("DistanceY", 46, 2, 43, 2, Q("3.792159 mm")))
sketch2.addConstraint(Sketcher.Constraint("DistanceY", 47, 2, 46, 2, Q("1.657109 mm")))
sketch2.addConstraint(Sketcher.Constraint("DistanceX", 50, 2, 45, 2, Q("6.524409 mm")))
sketch2.addConstraint(Sketcher.Constraint("DistanceX", 51, 2, 49, 2, Q("1.509249 mm")))
sketch2.addConstraint(Sketcher.Constraint("DistanceY", 0, 2, 51, 2, Q("8.923751 mm")))
sketch2.addConstraint(Sketcher.Constraint("DistanceX", 52, 2, 50, 2, Q("1.017231 mm")))
sketch2.addConstraint(Sketcher.Constraint("DistanceX", 54, 2, 1, 2, Q("1.017231 mm")))
pocket1 = doc.addObject("PartDesign::Pocket", "Pocket")
body.addObject(pocket1)
pocket1.Profile = sketch2
pocket1.Length = 29
pocket1.Reversed = True

doc.recompute()
